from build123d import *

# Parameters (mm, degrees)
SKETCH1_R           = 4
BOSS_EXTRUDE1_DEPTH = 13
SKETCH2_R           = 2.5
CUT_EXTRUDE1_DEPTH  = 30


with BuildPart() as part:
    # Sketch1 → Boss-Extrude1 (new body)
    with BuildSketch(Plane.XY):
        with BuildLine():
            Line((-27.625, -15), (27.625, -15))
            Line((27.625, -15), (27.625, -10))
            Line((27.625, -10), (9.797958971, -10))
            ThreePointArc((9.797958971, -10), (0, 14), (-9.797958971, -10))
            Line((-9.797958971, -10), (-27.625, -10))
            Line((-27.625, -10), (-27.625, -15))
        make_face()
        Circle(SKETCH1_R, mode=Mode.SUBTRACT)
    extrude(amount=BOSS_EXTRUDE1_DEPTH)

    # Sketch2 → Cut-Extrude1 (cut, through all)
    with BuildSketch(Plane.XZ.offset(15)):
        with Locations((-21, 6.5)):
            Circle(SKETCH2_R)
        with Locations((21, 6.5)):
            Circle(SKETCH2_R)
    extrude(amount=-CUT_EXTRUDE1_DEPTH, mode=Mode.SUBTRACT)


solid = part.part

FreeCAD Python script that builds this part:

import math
import FreeCAD as App
import Part
import Sketcher
Q = App.Units.Quantity

doc = App.newDocument("Part")
body = doc.addObject("PartDesign::Body", "Body")

# Sketch on XY plane
sketch1 = body.newObject("Sketcher::SketchObject", "Sketch")
sketch1.AttachmentSupport = (doc.getObject("XY_Plane"), [""])
sketch1.MapMode = "FlatFace"
sketch1.addGeometry([
    Part.LineSegment(App.Vector(-27.6, -15, 0), App.Vector(27.6, -15, 0)),  # 0
    Part.LineSegment(App.Vector(27.6, -15, 0), App.Vector(27.6, -10, 0)),  # 1
    Part.LineSegment(App.Vector(27.6, -10, 0), App.Vector(9.8, -10, 0)),  # 2
    Part.ArcOfCircle(Part.Circle(App.Vector(0, 0, 0), App.Vector(0, 0, 1), 14), math.radians(-46), math.radians(226)),  # 3
    Part.LineSegment(App.Vector(-9.8, -10, 0), App.Vector(-27.6, -10, 0)),  # 4
    Part.LineSegment(App.Vector(-27.6, -10, 0), App.Vector(-27.6, -15, 0)),  # 5
    Part.Circle(App.Vector(0, 0, 0), App.Vector(0, 0, 1), 4),  # 6
], False)
sketch1.addConstraint([
    Sketcher.Constraint("Coincident", 0, 2, 1, 1),
    Sketcher.Constraint("Coincident", 1, 2, 2, 1),
    Sketcher.Constraint("Coincident", 2, 2, 3, 1),
    Sketcher.Constraint("Coincident", 3, 2, 4, 1),
    Sketcher.Constraint("Coincident", 4, 2, 5, 1),
    Sketcher.Constraint("Coincident", 5, 2, 0, 1),
    Sketcher.Constraint("Horizontal", 0),
    Sketcher.Constraint("Vertical", 1),
    Sketcher.Constraint("Horizontal", 2),
    Sketcher.Constraint("Horizontal", 4),
    Sketcher.Constraint("Vertical", 5),
    Sketcher.Constraint("Coincident", 3, 3, -1, 1),
    Sketcher.Constraint("Coincident", 6, 3, -1, 1),
    Sketcher.Constraint("Symmetric", 1, 2, 4, 2, -2),
    Sketcher.Constraint("Diameter", 6, Q("8 mm")),
    Sketcher.Constraint("Radius", 3, Q("14 mm")),
    Sketcher.Constraint("DistanceY", 1, 1, 1, 2, Q("5 mm")),
    Sketcher.Constraint("DistanceY", 0, 2, -1, 1, Q("15 mm")),
    Sketcher.Constraint("DistanceX", 0, 1, 0, 2, Q("55.25 mm")),
])
pad1 = body.newObject("PartDesign::Pad", "Pad")
pad1.Profile = sketch1
pad1.Length = 13

# Sketch on XZ plane
sketch2 = body.newObject("Sketcher::SketchObject", "Sketch001")
sketch2.AttachmentSupport = (doc.getObject("XZ_Plane"), [""])
sketch2.MapMode = "FlatFace"
sketch2.AttachmentOffset = App.Placement(App.Vector(0, 0, 15), App.Rotation())
sketch2.addGeometry([
    Part.Circle(App.Vector(-21, 6.5, 0), App.Vector(0, 0, 1), 2.5),
    Part.Circle(App.Vector(21, 6.5, 0), App.Vector(0, 0, 1), 2.5),
], False)
sketch2.addConstraint([
    Sketcher.Constraint("Equal", 0, 1),
    Sketcher.Constraint("Symmetric", 0, 3, 1, 3, -2),
    Sketcher.Constraint("Diameter", 0, Q("5 mm")),
    Sketcher.Constraint("DistanceX", 0, 3, -1, 1, Q("21 mm")),
    Sketcher.Constraint("DistanceY", -1, 1, 0, 3, Q("6.5 mm")),
])
pocket1 = body.newObject("PartDesign::Pocket", "Pocket")
pocket1.Profile = sketch2
pocket1.Type = "ThroughAll"

doc.recompute()
